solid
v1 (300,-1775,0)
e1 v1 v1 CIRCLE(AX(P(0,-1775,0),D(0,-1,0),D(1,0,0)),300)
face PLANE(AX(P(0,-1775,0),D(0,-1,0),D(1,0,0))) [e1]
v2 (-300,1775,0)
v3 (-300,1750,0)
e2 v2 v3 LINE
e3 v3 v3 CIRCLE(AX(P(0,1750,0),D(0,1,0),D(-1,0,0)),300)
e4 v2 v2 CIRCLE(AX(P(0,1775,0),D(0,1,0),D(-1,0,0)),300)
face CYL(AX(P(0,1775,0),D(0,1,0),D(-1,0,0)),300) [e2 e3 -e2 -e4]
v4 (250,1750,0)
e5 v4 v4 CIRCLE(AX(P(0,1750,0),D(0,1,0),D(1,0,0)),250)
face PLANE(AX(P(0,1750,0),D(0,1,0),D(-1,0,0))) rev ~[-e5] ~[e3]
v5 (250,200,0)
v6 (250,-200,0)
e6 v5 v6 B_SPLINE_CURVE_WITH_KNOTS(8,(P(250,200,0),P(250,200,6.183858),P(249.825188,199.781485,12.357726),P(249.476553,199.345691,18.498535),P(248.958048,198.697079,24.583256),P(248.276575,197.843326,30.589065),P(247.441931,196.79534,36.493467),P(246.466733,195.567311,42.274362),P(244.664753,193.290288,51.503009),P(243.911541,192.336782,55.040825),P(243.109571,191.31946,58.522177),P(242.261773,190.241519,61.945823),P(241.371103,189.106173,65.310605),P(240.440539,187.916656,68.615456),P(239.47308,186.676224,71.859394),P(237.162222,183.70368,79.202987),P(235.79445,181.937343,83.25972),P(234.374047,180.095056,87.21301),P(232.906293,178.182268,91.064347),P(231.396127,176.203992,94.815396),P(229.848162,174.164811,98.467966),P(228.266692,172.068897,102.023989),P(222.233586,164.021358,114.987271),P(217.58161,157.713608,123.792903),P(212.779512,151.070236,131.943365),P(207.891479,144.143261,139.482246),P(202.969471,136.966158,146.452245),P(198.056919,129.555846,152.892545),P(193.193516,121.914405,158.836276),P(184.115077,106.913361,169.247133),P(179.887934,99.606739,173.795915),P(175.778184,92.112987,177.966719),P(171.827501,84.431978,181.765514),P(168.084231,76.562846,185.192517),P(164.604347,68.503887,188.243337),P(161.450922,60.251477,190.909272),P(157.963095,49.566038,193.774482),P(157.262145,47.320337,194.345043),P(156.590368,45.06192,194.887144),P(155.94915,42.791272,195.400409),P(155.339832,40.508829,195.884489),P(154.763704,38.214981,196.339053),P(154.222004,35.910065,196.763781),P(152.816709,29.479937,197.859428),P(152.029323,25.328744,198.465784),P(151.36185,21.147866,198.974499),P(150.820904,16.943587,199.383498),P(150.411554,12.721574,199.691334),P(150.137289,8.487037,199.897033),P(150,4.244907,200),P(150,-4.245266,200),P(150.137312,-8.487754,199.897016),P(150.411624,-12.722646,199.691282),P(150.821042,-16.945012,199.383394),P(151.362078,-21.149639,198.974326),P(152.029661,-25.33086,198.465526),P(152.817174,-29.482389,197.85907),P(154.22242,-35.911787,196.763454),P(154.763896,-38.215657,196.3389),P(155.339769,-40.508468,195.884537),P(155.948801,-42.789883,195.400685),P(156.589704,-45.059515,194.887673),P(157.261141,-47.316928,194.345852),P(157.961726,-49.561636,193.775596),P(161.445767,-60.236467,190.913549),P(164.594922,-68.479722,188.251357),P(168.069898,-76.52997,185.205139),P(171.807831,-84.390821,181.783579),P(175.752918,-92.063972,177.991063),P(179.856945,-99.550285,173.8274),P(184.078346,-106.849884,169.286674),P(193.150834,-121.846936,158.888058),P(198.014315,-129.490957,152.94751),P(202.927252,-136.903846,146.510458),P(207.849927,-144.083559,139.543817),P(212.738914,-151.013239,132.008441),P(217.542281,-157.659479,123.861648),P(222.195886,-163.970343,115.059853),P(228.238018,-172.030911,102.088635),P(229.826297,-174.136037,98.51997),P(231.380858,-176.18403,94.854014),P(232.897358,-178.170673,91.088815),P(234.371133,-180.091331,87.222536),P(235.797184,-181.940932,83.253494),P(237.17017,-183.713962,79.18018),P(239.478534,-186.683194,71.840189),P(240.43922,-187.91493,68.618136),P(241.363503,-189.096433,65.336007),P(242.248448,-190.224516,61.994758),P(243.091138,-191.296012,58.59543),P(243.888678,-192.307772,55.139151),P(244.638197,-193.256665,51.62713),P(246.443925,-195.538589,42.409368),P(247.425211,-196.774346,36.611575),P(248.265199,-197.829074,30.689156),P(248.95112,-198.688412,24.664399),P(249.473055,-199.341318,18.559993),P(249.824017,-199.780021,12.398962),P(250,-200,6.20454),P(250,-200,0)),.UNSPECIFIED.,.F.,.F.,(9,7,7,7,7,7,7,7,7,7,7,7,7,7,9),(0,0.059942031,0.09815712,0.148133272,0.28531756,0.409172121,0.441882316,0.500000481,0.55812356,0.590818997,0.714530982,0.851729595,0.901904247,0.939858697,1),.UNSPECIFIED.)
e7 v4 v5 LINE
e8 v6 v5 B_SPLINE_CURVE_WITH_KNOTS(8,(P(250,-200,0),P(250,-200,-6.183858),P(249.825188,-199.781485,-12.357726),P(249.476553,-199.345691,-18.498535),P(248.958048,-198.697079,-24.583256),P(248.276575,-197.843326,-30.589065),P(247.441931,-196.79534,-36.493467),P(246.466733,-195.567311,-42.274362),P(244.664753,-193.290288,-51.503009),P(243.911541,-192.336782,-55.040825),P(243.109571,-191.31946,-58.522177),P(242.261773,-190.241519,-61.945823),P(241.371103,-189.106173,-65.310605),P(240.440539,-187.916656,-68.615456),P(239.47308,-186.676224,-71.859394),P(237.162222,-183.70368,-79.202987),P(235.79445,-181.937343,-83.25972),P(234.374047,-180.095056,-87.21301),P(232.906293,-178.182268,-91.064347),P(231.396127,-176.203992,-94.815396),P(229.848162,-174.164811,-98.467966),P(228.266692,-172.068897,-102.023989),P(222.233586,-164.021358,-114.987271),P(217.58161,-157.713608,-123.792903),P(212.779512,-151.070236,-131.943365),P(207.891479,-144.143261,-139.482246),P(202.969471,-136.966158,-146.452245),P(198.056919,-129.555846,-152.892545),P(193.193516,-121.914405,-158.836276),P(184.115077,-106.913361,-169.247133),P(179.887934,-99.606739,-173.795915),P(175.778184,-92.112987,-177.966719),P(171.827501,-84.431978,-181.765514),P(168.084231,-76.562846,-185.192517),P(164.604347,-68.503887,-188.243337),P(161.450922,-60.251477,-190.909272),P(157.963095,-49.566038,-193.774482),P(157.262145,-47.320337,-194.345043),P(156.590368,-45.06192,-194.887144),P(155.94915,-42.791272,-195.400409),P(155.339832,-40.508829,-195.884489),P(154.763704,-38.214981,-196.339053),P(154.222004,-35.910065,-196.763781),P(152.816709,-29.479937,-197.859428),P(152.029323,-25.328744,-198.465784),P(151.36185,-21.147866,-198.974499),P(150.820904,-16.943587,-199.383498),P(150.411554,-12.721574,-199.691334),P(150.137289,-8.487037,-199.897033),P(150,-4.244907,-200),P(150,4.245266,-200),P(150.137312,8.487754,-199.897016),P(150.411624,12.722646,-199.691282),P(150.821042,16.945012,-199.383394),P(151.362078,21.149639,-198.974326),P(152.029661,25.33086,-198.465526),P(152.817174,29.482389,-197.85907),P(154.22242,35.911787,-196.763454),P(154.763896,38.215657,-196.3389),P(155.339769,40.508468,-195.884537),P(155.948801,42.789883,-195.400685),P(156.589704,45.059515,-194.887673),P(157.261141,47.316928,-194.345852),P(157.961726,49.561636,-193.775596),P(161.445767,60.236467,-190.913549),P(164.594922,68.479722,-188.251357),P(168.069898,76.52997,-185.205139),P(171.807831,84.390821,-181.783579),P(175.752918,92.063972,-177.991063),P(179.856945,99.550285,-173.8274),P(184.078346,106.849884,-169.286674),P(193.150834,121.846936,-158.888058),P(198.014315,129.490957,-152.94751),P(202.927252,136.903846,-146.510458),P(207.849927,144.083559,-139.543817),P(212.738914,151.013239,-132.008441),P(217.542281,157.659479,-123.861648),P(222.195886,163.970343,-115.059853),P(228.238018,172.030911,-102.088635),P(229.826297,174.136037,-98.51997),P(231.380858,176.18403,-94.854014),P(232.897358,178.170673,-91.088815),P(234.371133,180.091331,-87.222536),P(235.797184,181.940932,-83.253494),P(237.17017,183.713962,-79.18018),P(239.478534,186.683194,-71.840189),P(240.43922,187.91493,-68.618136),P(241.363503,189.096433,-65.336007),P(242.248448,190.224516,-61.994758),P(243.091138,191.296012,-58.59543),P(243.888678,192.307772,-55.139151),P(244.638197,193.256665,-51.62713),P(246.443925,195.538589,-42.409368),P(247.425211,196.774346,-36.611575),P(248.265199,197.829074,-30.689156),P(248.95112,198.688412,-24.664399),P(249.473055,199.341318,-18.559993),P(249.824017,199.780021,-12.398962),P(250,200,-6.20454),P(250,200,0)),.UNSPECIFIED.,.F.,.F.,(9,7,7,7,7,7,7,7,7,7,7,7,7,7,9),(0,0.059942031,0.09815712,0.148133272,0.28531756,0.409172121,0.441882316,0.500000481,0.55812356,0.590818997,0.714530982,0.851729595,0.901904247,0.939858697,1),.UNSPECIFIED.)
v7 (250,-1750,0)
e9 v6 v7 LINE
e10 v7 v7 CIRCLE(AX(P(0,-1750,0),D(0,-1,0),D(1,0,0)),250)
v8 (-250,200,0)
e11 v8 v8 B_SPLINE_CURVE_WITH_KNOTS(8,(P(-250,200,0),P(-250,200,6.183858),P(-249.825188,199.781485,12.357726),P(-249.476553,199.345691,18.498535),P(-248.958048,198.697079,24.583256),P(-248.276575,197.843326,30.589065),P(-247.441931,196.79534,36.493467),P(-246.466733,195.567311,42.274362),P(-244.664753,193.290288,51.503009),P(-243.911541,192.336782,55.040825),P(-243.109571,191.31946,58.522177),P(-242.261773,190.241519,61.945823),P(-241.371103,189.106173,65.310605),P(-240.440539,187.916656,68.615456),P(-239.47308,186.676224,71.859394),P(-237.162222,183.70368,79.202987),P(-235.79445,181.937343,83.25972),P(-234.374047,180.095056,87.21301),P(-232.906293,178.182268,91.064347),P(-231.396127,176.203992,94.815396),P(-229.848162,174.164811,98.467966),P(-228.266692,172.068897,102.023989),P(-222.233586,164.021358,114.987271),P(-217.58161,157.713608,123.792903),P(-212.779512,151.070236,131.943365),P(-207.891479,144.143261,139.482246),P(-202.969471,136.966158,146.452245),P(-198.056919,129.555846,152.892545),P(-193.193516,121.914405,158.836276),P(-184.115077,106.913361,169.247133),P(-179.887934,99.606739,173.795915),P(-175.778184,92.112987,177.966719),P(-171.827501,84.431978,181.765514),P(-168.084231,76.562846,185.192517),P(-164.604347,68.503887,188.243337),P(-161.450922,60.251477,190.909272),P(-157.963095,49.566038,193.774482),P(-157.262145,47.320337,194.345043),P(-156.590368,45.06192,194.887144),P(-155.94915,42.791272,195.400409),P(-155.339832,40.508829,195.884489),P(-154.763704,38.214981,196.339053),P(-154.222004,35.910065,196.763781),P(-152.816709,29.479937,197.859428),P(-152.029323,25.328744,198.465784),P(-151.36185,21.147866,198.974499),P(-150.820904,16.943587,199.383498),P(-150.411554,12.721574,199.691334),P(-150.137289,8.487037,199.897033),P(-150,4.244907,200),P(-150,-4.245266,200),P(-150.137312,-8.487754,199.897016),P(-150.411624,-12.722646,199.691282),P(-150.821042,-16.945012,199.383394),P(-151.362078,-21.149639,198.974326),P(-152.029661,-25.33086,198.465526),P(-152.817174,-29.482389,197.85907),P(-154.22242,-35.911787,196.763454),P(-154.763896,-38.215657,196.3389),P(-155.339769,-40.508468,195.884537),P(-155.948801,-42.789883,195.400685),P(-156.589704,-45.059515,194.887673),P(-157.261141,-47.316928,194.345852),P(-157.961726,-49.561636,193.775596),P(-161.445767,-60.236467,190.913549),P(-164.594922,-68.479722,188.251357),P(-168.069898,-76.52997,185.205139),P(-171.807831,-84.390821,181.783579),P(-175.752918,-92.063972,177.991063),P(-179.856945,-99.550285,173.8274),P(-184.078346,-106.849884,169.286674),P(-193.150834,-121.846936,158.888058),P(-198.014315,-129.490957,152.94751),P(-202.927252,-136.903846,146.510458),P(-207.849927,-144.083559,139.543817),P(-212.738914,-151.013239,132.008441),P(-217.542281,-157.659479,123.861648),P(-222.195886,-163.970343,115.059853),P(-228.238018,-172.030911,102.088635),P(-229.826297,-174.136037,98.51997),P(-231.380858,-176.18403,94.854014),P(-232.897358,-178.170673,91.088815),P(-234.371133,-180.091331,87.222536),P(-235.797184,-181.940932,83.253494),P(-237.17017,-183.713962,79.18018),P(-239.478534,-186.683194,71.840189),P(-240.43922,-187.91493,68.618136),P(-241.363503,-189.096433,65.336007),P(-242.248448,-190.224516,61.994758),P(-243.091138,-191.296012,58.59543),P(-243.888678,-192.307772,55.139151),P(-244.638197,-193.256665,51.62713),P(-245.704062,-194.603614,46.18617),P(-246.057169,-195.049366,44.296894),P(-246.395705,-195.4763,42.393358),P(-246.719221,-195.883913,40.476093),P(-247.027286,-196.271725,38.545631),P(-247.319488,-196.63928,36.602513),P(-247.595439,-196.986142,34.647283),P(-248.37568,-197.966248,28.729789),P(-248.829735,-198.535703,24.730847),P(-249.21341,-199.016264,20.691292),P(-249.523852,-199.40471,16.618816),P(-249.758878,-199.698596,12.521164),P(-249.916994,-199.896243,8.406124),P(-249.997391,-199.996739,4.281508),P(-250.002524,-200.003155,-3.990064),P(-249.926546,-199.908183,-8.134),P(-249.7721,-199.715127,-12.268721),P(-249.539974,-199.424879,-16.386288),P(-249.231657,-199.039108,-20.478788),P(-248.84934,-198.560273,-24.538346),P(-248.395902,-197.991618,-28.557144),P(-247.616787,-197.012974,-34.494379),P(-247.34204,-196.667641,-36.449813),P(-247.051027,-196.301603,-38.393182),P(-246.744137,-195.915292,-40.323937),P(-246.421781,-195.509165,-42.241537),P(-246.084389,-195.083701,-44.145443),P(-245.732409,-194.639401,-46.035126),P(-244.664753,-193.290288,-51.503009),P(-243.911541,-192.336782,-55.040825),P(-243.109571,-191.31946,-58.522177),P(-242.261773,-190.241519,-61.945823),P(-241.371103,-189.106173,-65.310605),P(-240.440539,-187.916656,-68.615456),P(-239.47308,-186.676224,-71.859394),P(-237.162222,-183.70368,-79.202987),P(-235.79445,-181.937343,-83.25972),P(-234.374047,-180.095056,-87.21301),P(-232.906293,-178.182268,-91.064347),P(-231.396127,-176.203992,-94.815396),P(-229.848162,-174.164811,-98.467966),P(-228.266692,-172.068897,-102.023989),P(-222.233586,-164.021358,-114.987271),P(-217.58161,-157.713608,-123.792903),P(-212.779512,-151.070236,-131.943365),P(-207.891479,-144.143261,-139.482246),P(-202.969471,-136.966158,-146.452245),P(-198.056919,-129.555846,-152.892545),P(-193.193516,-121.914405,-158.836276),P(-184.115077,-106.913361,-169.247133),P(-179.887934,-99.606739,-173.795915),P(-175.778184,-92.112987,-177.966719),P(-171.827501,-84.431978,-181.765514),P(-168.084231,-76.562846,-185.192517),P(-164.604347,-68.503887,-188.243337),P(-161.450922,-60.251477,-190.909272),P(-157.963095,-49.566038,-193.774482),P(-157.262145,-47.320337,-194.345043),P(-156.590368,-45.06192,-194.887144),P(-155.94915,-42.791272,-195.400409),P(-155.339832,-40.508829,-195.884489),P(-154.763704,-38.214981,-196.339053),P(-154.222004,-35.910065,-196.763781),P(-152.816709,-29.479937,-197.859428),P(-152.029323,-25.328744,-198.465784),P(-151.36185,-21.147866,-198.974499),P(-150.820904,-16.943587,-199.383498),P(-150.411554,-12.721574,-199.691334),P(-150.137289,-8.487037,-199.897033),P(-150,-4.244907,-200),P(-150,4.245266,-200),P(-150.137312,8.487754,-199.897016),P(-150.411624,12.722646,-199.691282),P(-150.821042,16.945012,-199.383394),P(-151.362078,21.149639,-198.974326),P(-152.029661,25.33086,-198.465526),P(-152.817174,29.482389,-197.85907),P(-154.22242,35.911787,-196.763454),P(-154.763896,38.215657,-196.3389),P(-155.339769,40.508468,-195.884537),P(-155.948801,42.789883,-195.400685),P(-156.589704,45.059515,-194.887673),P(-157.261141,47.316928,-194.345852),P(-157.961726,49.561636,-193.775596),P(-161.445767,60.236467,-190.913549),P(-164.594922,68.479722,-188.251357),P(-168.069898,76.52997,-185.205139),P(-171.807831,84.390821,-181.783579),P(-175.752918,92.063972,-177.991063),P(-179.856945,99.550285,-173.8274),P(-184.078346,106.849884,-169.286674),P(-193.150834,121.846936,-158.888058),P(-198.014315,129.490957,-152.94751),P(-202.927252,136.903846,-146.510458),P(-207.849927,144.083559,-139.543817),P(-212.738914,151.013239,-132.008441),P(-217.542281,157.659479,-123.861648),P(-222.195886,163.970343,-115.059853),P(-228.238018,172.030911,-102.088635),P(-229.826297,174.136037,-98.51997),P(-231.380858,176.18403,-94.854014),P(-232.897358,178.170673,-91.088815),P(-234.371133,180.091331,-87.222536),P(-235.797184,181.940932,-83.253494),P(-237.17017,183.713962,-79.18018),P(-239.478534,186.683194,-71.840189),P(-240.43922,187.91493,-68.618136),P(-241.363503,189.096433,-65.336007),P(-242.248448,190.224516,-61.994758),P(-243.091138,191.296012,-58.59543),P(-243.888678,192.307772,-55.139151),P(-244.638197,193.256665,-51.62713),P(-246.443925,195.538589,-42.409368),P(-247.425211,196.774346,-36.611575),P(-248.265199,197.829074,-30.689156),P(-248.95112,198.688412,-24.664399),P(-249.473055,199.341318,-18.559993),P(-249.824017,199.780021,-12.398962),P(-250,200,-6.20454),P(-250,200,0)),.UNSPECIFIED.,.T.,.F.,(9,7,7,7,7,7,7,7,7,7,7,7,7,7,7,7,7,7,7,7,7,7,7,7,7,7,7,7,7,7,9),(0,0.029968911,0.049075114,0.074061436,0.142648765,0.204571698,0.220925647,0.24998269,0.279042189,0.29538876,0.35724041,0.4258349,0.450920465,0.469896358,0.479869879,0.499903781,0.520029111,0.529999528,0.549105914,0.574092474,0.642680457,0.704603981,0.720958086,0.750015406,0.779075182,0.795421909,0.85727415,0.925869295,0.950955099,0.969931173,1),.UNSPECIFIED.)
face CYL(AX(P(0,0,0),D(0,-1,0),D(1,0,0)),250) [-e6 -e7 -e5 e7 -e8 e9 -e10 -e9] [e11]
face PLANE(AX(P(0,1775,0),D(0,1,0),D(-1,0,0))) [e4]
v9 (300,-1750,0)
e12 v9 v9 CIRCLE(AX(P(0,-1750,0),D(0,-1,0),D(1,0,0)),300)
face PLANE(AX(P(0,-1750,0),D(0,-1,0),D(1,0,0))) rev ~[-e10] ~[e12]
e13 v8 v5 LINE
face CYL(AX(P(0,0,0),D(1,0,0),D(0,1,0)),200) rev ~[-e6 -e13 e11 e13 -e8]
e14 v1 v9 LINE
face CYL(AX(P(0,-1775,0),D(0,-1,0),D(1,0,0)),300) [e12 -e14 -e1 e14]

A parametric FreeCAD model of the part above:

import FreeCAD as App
import Part
import Sketcher

doc = App.newDocument("Part")
params = doc.addObject("Spreadsheet::Sheet", "Params")
for row, (alias, value) in enumerate([
    ("sketch1_diameter", "500 mm"),
    ("pad1_length", "3550 mm"),
    ("sketch2_diameter", "600 mm"),
    ("sketch2_diameter2", "500 mm"),
    ("pad2_length", "25 mm"),
    ("sketch3_diameter", "600 mm"),
    ("sketch3_diameter2", "500 mm"),
    ("pad3_length", "25 mm"),
    ("sketch4_diameter", "400 mm"),
    ("pocket1_length", "2466 mm"),
], start=1):
    params.set(f"A{row}", alias)
    params.set(f"B{row}", "=" + value)
    params.setAlias(f"B{row}", alias)

body = doc.addObject("PartDesign::Body", "Body")

# Sketch on XZ plane
sketch1 = body.newObject("Sketcher::SketchObject", "Sketch")
sketch1.AttachmentSupport = (doc.getObject("XZ_Plane"), [""])
sketch1.MapMode = "FlatFace"
sketch1.addGeometry(Part.Circle(App.Vector(0, 0, 0), App.Vector(0, 0, 1), 250), False)
sketch1.addConstraint([
    Sketcher.Constraint("Coincident", 0, 3, -1, 1),
    Sketcher.Constraint("Diameter", 0, 500.0),
])
sketch1.setExpression("Constraints[1]", "Params.sketch1_diameter")
pad1 = body.newObject("PartDesign::Pad", "Pad")
pad1.Profile = sketch1
pad1.setExpression("Length", "Params.pad1_length")
pad1.Midplane = True

# Sketch on XZ plane
sketch2 = body.newObject("Sketcher::SketchObject", "Sketch001")
sketch2.AttachmentSupport = (doc.getObject("XZ_Plane"), [""])
sketch2.MapMode = "FlatFace"
sketch2.AttachmentOffset = App.Placement(App.Vector(0, 0, 1775), App.Rotation())
sketch2.addGeometry([
    Part.Circle(App.Vector(0, 0, 0), App.Vector(0, 0, 1), 300),
    Part.Circle(App.Vector(0, 0, 0), App.Vector(0, 0, 1), 250),
], False)
sketch2.addConstraint([
    Sketcher.Constraint("Coincident", 0, 3, -1, 1),
    Sketcher.Constraint("Coincident", 1, 3, -1, 1),
    Sketcher.Constraint("Diameter", 0, 600.0),
    Sketcher.Constraint("Diameter", 1, 500.0),
])
sketch2.setExpression("Constraints[2]", "Params.sketch2_diameter")
sketch2.setExpression("Constraints[3]", "Params.sketch2_diameter2")
pad2 = body.newObject("PartDesign::Pad", "Pad001")
pad2.Profile = sketch2
pad2.setExpression("Length", "Params.pad2_length")
pad2.Reversed = True

# Sketch on XZ plane
sketch3 = body.newObject("Sketcher::SketchObject", "Sketch002")
sketch3.AttachmentSupport = (doc.getObject("XZ_Plane"), [""])
sketch3.MapMode = "FlatFace"
sketch3.AttachmentOffset = App.Placement(App.Vector(0, 0, -1775), App.Rotation())
sketch3.addGeometry([
    Part.Circle(App.Vector(0, 0, 0), App.Vector(0, 0, 1), 300),
    Part.Circle(App.Vector(0, 0, 0), App.Vector(0, 0, 1), 250),
], False)
sketch3.addConstraint([
    Sketcher.Constraint("Coincident", 0, 3, -1, 1),
    Sketcher.Constraint("Coincident", 1, 3, -1, 1),
    Sketcher.Constraint("Diameter", 0, 600.0),
    Sketcher.Constraint("Diameter", 1, 500.0),
])
sketch3.setExpression("Constraints[2]", "Params.sketch3_diameter")
sketch3.setExpression("Constraints[3]", "Params.sketch3_diameter2")
pad3 = body.newObject("PartDesign::Pad", "Pad002")
pad3.Profile = sketch3
pad3.setExpression("Length", "Params.pad3_length")

# Sketch on YZ plane
sketch4 = body.newObject("Sketcher::SketchObject", "Sketch003")
sketch4.AttachmentSupport = (doc.getObject("YZ_Plane"), [""])
sketch4.MapMode = "FlatFace"
sketch4.addGeometry(Part.Circle(App.Vector(0, 0, 0), App.Vector(0, 0, 1), 200), False)
sketch4.addConstraint([
    Sketcher.Constraint("Coincident", 0, 3, -1, 1),
    Sketcher.Constraint("Diameter", 0, 400.0),
])
sketch4.setExpression("Constraints[1]", "Params.sketch4_diameter")
pocket1 = body.newObject("PartDesign::Pocket", "Pocket")
pocket1.Profile = sketch4
pocket1.setExpression("Length", "Params.pocket1_length")
pocket1.Midplane = True

doc.recompute()
